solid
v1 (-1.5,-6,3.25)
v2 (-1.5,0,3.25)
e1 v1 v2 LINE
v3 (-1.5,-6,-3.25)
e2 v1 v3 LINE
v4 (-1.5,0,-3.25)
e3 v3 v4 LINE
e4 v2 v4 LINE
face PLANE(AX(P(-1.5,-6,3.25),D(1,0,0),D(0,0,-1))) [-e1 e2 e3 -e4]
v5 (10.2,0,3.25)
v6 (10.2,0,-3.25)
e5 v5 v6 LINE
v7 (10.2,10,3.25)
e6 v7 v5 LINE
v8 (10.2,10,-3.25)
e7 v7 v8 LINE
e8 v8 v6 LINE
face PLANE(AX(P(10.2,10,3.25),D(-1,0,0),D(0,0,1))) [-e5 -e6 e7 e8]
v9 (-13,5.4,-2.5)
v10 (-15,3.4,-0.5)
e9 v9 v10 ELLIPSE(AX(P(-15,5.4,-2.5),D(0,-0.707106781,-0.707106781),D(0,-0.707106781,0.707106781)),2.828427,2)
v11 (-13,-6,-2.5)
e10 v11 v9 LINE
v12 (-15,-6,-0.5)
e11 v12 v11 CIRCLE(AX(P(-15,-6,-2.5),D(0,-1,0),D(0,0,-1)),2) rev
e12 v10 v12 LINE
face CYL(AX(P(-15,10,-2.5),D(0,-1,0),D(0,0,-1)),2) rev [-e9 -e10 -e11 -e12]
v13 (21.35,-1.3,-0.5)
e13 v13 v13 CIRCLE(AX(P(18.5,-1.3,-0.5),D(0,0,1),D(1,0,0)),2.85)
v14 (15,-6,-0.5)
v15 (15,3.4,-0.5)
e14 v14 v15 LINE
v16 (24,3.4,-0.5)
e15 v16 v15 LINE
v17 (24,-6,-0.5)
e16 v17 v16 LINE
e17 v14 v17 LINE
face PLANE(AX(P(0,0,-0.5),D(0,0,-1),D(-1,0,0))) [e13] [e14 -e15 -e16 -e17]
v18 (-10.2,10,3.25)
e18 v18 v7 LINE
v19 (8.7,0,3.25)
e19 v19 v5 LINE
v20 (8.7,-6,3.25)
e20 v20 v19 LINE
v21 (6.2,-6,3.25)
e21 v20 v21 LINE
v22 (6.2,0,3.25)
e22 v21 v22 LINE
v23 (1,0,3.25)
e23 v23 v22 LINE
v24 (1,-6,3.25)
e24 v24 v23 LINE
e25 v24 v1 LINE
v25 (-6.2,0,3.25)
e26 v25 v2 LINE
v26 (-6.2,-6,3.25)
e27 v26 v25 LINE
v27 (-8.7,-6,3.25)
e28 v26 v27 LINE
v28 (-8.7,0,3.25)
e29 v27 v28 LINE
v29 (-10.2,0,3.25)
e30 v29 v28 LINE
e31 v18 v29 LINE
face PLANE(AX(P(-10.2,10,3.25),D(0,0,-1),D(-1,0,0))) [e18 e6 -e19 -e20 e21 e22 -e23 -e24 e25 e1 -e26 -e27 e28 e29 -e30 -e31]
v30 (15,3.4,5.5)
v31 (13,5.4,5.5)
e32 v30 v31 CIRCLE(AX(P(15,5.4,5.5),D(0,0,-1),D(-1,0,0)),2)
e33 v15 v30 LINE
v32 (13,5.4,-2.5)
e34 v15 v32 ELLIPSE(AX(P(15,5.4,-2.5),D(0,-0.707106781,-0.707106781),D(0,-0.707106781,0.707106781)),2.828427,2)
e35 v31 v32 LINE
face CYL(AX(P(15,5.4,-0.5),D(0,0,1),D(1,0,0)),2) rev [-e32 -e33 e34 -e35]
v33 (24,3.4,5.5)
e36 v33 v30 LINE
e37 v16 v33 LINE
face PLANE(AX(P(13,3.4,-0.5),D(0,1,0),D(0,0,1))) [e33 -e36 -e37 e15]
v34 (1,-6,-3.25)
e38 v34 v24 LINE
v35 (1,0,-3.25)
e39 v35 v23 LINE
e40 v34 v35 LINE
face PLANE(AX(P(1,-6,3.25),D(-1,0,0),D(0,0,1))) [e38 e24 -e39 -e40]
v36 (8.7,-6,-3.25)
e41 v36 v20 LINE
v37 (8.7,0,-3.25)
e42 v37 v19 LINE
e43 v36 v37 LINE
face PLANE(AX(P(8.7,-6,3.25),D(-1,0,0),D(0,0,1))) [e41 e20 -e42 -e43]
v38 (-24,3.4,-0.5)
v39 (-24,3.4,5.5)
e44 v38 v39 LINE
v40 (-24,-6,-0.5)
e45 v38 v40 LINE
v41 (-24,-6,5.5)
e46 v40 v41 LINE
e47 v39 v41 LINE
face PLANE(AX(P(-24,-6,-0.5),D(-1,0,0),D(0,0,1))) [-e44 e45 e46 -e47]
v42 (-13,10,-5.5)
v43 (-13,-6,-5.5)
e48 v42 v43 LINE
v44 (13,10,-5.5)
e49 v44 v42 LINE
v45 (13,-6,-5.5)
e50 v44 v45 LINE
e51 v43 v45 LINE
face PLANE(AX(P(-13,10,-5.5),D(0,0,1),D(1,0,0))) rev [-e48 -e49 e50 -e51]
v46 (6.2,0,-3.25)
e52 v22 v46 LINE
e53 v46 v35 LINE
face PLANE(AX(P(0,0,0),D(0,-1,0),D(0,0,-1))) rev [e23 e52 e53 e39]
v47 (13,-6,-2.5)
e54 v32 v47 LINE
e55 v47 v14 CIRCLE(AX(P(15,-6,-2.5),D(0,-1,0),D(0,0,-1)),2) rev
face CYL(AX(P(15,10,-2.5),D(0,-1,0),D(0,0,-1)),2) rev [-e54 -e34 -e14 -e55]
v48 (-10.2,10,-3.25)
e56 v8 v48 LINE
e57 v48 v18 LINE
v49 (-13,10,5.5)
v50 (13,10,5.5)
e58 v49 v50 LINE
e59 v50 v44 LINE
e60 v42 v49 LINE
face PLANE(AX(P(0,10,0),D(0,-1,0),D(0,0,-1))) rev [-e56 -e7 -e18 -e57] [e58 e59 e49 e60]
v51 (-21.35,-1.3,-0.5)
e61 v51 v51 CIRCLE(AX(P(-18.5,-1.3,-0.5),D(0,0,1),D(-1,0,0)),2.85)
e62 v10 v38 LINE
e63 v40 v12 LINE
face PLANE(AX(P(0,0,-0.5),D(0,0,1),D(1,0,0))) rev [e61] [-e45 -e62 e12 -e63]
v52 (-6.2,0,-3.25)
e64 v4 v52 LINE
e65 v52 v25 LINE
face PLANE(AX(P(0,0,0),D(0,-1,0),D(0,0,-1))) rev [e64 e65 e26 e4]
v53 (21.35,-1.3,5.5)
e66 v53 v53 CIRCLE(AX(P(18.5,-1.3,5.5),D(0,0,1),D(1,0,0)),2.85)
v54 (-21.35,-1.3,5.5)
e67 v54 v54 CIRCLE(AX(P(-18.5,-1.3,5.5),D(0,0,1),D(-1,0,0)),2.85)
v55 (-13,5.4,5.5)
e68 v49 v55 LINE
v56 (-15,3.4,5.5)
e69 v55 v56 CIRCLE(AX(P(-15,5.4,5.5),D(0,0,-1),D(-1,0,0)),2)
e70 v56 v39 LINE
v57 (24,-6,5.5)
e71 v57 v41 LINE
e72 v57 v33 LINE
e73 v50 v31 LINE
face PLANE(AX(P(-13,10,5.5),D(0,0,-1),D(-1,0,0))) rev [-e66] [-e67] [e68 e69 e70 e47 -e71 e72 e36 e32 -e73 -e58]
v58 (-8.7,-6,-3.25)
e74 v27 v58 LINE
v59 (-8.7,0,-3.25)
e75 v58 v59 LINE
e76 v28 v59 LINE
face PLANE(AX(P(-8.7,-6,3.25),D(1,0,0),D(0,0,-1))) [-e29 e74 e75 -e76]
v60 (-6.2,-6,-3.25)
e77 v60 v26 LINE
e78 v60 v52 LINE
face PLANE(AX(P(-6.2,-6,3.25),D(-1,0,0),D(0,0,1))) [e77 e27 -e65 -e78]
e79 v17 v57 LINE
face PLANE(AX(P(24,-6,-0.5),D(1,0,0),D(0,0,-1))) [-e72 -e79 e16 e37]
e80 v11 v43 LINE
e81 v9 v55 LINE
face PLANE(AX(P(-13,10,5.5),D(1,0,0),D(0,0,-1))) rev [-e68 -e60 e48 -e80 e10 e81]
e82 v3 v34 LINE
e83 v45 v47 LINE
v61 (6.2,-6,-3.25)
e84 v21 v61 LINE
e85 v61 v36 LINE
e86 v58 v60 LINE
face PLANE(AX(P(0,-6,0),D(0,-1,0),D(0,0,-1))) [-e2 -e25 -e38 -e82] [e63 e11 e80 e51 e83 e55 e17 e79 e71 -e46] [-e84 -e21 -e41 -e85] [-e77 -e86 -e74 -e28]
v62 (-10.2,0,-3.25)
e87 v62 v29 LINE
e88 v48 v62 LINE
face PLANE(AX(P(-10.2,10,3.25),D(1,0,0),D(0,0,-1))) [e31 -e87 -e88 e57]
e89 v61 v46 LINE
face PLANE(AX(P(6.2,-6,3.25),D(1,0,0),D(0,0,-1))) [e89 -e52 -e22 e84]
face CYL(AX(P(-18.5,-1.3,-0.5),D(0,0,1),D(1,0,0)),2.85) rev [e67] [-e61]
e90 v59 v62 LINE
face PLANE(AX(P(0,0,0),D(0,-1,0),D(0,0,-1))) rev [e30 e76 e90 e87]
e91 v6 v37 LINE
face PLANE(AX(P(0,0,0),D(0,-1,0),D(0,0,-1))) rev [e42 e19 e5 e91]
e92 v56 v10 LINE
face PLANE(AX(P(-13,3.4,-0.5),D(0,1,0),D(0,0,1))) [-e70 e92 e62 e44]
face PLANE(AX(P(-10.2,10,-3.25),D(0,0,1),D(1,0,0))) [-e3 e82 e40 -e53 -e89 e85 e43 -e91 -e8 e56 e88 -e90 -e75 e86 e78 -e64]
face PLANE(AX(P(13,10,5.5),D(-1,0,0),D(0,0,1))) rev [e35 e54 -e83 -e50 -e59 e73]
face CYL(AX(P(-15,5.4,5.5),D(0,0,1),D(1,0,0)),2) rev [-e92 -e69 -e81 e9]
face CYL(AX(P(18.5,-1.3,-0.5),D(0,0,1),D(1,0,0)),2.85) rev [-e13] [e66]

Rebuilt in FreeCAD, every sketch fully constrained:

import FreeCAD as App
import Part
import Sketcher

V = App.Vector
Q = App.Units.Quantity


def edges_at(feature, points):
    """Names of the edges that pass closest to the given points."""
    edges = feature.Shape.Edges
    near = lambda p: min(range(len(edges)), key=lambda i: edges[i].distToShape(Part.Vertex(*p))[0])
    return sorted({f"Edge{near(p) + 1}" for p in points})

doc = App.newDocument("Part")
body = doc.addObject("PartDesign::Body", "Body")

sketch1 = doc.addObject("Sketcher::SketchObject", "Sketch")
body.addObject(sketch1)
sketch1.AttachmentSupport = (doc.XZ_Plane, [""])
sketch1.MapMode = "FlatFace"
sketch1.addGeometry(Part.LineSegment(V(-13, -6, 0), V(-13, 6, 0)), False)
sketch1.addGeometry(Part.LineSegment(V(-13, 6, 0), V(13, 6, 0)), False)
sketch1.addGeometry(Part.LineSegment(V(13, 6, 0), V(13, -6, 0)), False)
sketch1.addGeometry(Part.LineSegment(V(13, -6, 0), V(-13, -6, 0)), False)
sketch1.addGeometry(Part.LineSegment(V(10, 3, 0), V(-10, 3, 0)), False)
sketch1.addGeometry(Part.LineSegment(V(-10, 3, 0), V(-10, -3, 0)), False)
sketch1.addGeometry(Part.LineSegment(V(-10, -3, 0), V(10, -3, 0)), False)
sketch1.addGeometry(Part.LineSegment(V(10, -3, 0), V(10, 3, 0)), False)
sketch1.addConstraint(Sketcher.Constraint("Coincident", 0, 2, 1, 1))
sketch1.addConstraint(Sketcher.Constraint("Coincident", 1, 2, 2, 1))
sketch1.addConstraint(Sketcher.Constraint("Coincident", 2, 2, 3, 1))
sketch1.addConstraint(Sketcher.Constraint("Coincident", 3, 2, 0, 1))
sketch1.addConstraint(Sketcher.Constraint("Coincident", 4, 2, 5, 1))
sketch1.addConstraint(Sketcher.Constraint("Coincident", 5, 2, 6, 1))
sketch1.addConstraint(Sketcher.Constraint("Coincident", 6, 2, 7, 1))
sketch1.addConstraint(Sketcher.Constraint("Coincident", 7, 2, 4, 1))
sketch1.addConstraint(Sketcher.Constraint("Vertical", 0))
sketch1.addConstraint(Sketcher.Constraint("Horizontal", 1))
sketch1.addConstraint(Sketcher.Constraint("Vertical", 2))
sketch1.addConstraint(Sketcher.Constraint("Horizontal", 3))
sketch1.addConstraint(Sketcher.Constraint("Horizontal", 4))
sketch1.addConstraint(Sketcher.Constraint("Vertical", 5))
sketch1.addConstraint(Sketcher.Constraint("Horizontal", 6))
sketch1.addConstraint(Sketcher.Constraint("Vertical", 7))
sketch1.addConstraint(Sketcher.Constraint("Symmetric", 0, 2, 2, 2, -1, 1))
sketch1.addConstraint(Sketcher.Constraint("Symmetric", 4, 2, 6, 2, -1, 1))
sketch1.addConstraint(Sketcher.Constraint("DistanceX", 1, 1, 1, 2, Q("26 mm")))
sketch1.addConstraint(Sketcher.Constraint("DistanceY", 0, 1, 0, 2, Q("11 mm")))
sketch1.addConstraint(Sketcher.Constraint("DistanceX", 4, 2, 4, 1, Q("20.4 mm")))
sketch1.addConstraint(Sketcher.Constraint("DistanceY", 5, 2, 5, 1, Q("6.5 mm")))
pad1 = doc.addObject("PartDesign::Pad", "Pad")
body.addObject(pad1)
pad1.Profile = sketch1
pad1.Length = 10
pad1.Reversed = True

sketch2 = doc.addObject("Sketcher::SketchObject", "Sketch001")
body.addObject(sketch2)
sketch2.AttachmentSupport = (doc.XZ_Plane, [""])
sketch2.MapMode = "FlatFace"
sketch2.addGeometry(Part.LineSegment(V(-13, 5.5, 0), V(-13, -5.5, 0)), False)
sketch2.addGeometry(Part.LineSegment(V(-13, -5.5, 0), V(13, -5.5, 0)), False)
sketch2.addGeometry(Part.LineSegment(V(13, -5.5, 0), V(13, 5.5, 0)), False)
sketch2.addGeometry(Part.LineSegment(V(13, 5.5, 0), V(-13, 5.5, 0)), False)
sketch2.addGeometry(Part.LineSegment(V(-6.2, -3.2, 0), V(-8.7, -3.2, 0)), False)
sketch2.addGeometry(Part.LineSegment(V(-8.7, -3.2, 0), V(-8.7, 3.2, 0)), False)
sketch2.addGeometry(Part.LineSegment(V(-8.7, 3.2, 0), V(-6.2, 3.2, 0)), False)
sketch2.addGeometry(Part.LineSegment(V(-6.2, 3.2, 0), V(-6.2, -3.2, 0)), False)
sketch2.addGeometry(Part.LineSegment(V(1, -3.2, 0), V(-1.5, -3.2, 0)), False)
sketch2.addGeometry(Part.LineSegment(V(-1.5, -3.2, 0), V(-1.5, 3.2, 0)), False)
sketch2.addGeometry(Part.LineSegment(V(-1.5, 3.2, 0), V(1, 3.2, 0)), False)
sketch2.addGeometry(Part.LineSegment(V(1, 3.2, 0), V(1, -3.2, 0)), False)
sketch2.addGeometry(Part.LineSegment(V(8.7, -3.2, 0), V(6.2, -3.2, 0)), False)
sketch2.addGeometry(Part.LineSegment(V(6.2, -3.2, 0), V(6.2, 3.2, 0)), False)
sketch2.addGeometry(Part.LineSegment(V(6.2, 3.2, 0), V(8.7, 3.2, 0)), False)
sketch2.addGeometry(Part.LineSegment(V(8.7, 3.2, 0), V(8.7, -3.2, 0)), False)
sketch2.addConstraint(Sketcher.Constraint("Coincident", 0, 2, 1, 1))
sketch2.addConstraint(Sketcher.Constraint("Coincident", 1, 2, 2, 1))
sketch2.addConstraint(Sketcher.Constraint("Coincident", 2, 2, 3, 1))
sketch2.addConstraint(Sketcher.Constraint("Coincident", 3, 2, 0, 1))
sketch2.addConstraint(Sketcher.Constraint("Coincident", 4, 2, 5, 1))
sketch2.addConstraint(Sketcher.Constraint("Coincident", 5, 2, 6, 1))
sketch2.addConstraint(Sketcher.Constraint("Coincident", 6, 2, 7, 1))
sketch2.addConstraint(Sketcher.Constraint("Coincident", 7, 2, 4, 1))
sketch2.addConstraint(Sketcher.Constraint("Coincident", 8, 2, 9, 1))
sketch2.addConstraint(Sketcher.Constraint("Coincident", 9, 2, 10, 1))
sketch2.addConstraint(Sketcher.Constraint("Coincident", 10, 2, 11, 1))
sketch2.addConstraint(Sketcher.Constraint("Coincident", 11, 2, 8, 1))
sketch2.addConstraint(Sketcher.Constraint("Coincident", 12, 2, 13, 1))
sketch2.addConstraint(Sketcher.Constraint("Coincident", 13, 2, 14, 1))
sketch2.addConstraint(Sketcher.Constraint("Coincident", 14, 2, 15, 1))
sketch2.addConstraint(Sketcher.Constraint("Coincident", 15, 2, 12, 1))
sketch2.addConstraint(Sketcher.Constraint("Vertical", 0))
sketch2.addConstraint(Sketcher.Constraint("Horizontal", 1))
sketch2.addConstraint(Sketcher.Constraint("Vertical", 2))
sketch2.addConstraint(Sketcher.Constraint("Horizontal", 3))
sketch2.addConstraint(Sketcher.Constraint("Horizontal", 4))
sketch2.addConstraint(Sketcher.Constraint("Vertical", 5))
sketch2.addConstraint(Sketcher.Constraint("Horizontal", 6))
sketch2.addConstraint(Sketcher.Constraint("Vertical", 7))
sketch2.addConstraint(Sketcher.Constraint("Horizontal", 8))
sketch2.addConstraint(Sketcher.Constraint("Vertical", 9))
sketch2.addConstraint(Sketcher.Constraint("Horizontal", 10))
sketch2.addConstraint(Sketcher.Constraint("Vertical", 11))
sketch2.addConstraint(Sketcher.Constraint("Horizontal", 12))
sketch2.addConstraint(Sketcher.Constraint("Vertical", 13))
sketch2.addConstraint(Sketcher.Constraint("Horizontal", 14))
sketch2.addConstraint(Sketcher.Constraint("Vertical", 15))
sketch2.addConstraint(Sketcher.Constraint("Symmetric", 0, 2, 2, 2, -1, 1))
sketch2.addConstraint(Sketcher.Constraint("Symmetric", 6, 2, 12, 2, -1, 1))
sketch2.addConstraint(Sketcher.Constraint("Symmetric", 4, 2, 14, 2, -1, 1))
sketch2.addConstraint(Sketcher.Constraint("Horizontal", 7, 2, 8, 2))
sketch2.addConstraint(Sketcher.Constraint("Horizontal", 6, 2, 9, 2))
sketch2.addConstraint(Sketcher.Constraint("Horizontal", 11, 2, 12, 2))
sketch2.addConstraint(Sketcher.Constraint("Equal", 6, 8))
sketch2.addConstraint(Sketcher.Constraint("DistanceX", 1, 1, 1, 2, Q("26 mm")))
sketch2.addConstraint(Sketcher.Constraint("DistanceY", 0, 2, 0, 1, Q("11 mm")))
sketch2.addConstraint(Sketcher.Constraint("DistanceX", 4, 2, 4, 1, Q("2.5 mm")))
sketch2.addConstraint(Sketcher.Constraint("DistanceY", 5, 1, 5, 2, Q("6.5 mm")))
sketch2.addConstraint(Sketcher.Constraint("DistanceX", -1, 1, 10, 2, Q("1 mm")))
sketch2.addConstraint(Sketcher.Constraint("DistanceX", 4, 2, -1, 1, Q("8.7 mm")))
pad2 = doc.addObject("PartDesign::Pad", "Pad001")
body.addObject(pad2)
pad2.Profile = sketch2
pad2.Length = 6

sketch3 = doc.addObject("Sketcher::SketchObject", "Sketch002")
body.addObject(sketch3)
sketch3.AttachmentSupport = (doc.XY_Plane, [""])
sketch3.MapMode = "FlatFace"
sketch3.AttachmentOffset = App.Placement(V(0, 0, 5.5), App.Rotation())
sketch3.addGeometry(Part.LineSegment(V(13, 3.4, 0), V(13, -6, 0)), False)
sketch3.addGeometry(Part.LineSegment(V(13, -6, 0), V(24, -6, 0)), False)
sketch3.addGeometry(Part.LineSegment(V(24, -6, 0), V(24, 3.4, 0)), False)
sketch3.addGeometry(Part.LineSegment(V(24, 3.4, 0), V(13, 3.4, 0)), False)
sketch3.addGeometry(Part.Circle(V(18.5, -1.3, 0), V(0, 0, 1), 2.9), False)
sketch3.addGeometry(Part.LineSegment(V(-24, 3.4, 0), V(-24, -6, 0)), False)
sketch3.addGeometry(Part.LineSegment(V(-24, -6, 0), V(-13, -6, 0)), False)
sketch3.addGeometry(Part.LineSegment(V(-13, -6, 0), V(-13, 3.4, 0)), False)
sketch3.addGeometry(Part.LineSegment(V(-13, 3.4, 0), V(-24, 3.4, 0)), False)
sketch3.addGeometry(Part.Circle(V(-18.5, -1.3, 0), V(0, 0, 1), 2.9), False)
sketch3.addConstraint(Sketcher.Constraint("Coincident", 0, 2, 1, 1))
sketch3.addConstraint(Sketcher.Constraint("Coincident", 1, 2, 2, 1))
sketch3.addConstraint(Sketcher.Constraint("Coincident", 2, 2, 3, 1))
sketch3.addConstraint(Sketcher.Constraint("Coincident", 3, 2, 0, 1))
sketch3.addConstraint(Sketcher.Constraint("Coincident", 5, 2, 6, 1))
sketch3.addConstraint(Sketcher.Constraint("Coincident", 6, 2, 7, 1))
sketch3.addConstraint(Sketcher.Constraint("Coincident", 7, 2, 8, 1))
sketch3.addConstraint(Sketcher.Constraint("Coincident", 8, 2, 5, 1))
sketch3.addConstraint(Sketcher.Constraint("Vertical", 0))
sketch3.addConstraint(Sketcher.Constraint("Horizontal", 1))
sketch3.addConstraint(Sketcher.Constraint("Vertical", 2))
sketch3.addConstraint(Sketcher.Constraint("Horizontal", 3))
sketch3.addConstraint(Sketcher.Constraint("Vertical", 5))
sketch3.addConstraint(Sketcher.Constraint("Horizontal", 6))
sketch3.addConstraint(Sketcher.Constraint("Vertical", 7))
sketch3.addConstraint(Sketcher.Constraint("Horizontal", 8))
sketch3.addConstraint(Sketcher.Constraint("Equal", 4, 9))
sketch3.addConstraint(Sketcher.Constraint("Symmetric", 4, 3, 9, 3, -2))
sketch3.addConstraint(Sketcher.Constraint("Symmetric", 1, 2, 5, 2, -2))
sketch3.addConstraint(Sketcher.Constraint("Symmetric", 3, 2, 7, 2, -2))
sketch3.addConstraint(Sketcher.Constraint("Diameter", 4, Q("5.7 mm")))
sketch3.addConstraint(Sketcher.Constraint("DistanceX", 1, 1, 1, 2, Q("11 mm")))
sketch3.addConstraint(Sketcher.Constraint("DistanceY", 0, 2, 0, 1, Q("9.4 mm")))
sketch3.addConstraint(Sketcher.Constraint("DistanceX", -1, 1, 0, 2, Q("13 mm")))
sketch3.addConstraint(Sketcher.Constraint("DistanceY", 0, 2, -1, 1, Q("6 mm")))
sketch3.addConstraint(Sketcher.Constraint("DistanceX", 9, 3, 4, 3, Q("37 mm")))
sketch3.addConstraint(Sketcher.Constraint("DistanceY", 4, 3, -1, 1, Q("1.3 mm")))
pad3 = doc.addObject("PartDesign::Pad", "Pad002")
body.addObject(pad3)
pad3.Profile = sketch3
pad3.Length = 6
pad3.Reversed = True
doc.recompute()

fillet = doc.addObject("PartDesign::Fillet", "Fillet")
body.addObject(fillet)
fillet.Base = (pad3, edges_at(pad3, [
    (13, -1.3, -0.5),
    (13, 3.4, 2.5),
    (-13, -1.3, -0.5),
    (-13, 3.4, 2.5),
]))
fillet.Radius = 2

doc.recompute()
